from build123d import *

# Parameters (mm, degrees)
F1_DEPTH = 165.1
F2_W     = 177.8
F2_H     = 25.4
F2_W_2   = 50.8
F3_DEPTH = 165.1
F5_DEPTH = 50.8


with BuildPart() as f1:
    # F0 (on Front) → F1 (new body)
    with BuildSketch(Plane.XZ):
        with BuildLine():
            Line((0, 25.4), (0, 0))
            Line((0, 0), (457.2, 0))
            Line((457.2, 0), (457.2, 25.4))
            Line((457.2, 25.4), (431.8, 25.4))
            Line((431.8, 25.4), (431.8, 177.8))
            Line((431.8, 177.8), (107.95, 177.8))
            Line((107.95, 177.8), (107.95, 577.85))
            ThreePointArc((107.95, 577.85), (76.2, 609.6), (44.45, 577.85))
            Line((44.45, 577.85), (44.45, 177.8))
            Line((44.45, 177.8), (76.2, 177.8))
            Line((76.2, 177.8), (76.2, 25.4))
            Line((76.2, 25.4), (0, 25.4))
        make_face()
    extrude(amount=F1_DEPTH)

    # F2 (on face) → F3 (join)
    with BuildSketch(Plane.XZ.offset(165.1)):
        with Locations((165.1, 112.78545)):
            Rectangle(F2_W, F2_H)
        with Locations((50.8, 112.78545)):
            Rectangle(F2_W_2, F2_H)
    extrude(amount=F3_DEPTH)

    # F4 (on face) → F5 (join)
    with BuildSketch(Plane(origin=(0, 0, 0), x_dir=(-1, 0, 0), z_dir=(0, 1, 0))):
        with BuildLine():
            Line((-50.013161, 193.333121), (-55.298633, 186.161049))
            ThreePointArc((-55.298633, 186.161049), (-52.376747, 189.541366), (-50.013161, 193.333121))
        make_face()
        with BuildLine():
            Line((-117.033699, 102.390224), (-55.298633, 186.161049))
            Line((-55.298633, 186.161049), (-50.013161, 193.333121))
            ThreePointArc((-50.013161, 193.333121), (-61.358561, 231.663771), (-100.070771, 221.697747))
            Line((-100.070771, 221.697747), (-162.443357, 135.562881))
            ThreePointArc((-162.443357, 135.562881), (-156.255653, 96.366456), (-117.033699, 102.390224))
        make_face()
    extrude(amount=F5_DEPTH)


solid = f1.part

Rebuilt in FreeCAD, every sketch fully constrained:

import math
import FreeCAD as App
import Part
import Sketcher
Q = App.Units.Quantity


def add_polygon(sketch, points):
    """Adds a closed chain of lines whose ends are joined by coincident constraints."""
    first, n = sketch.GeometryCount, len(points)
    for a, b in zip(points, points[1:] + points[:1]):
        sketch.addGeometry(Part.LineSegment(App.Vector(*a, 0), App.Vector(*b, 0)), False)
    for i in range(n):
        sketch.addConstraint(Sketcher.Constraint("Coincident", first + i, 2, first + (i + 1) % n, 1))

doc = App.newDocument("Part")
body = doc.addObject("PartDesign::Body", "Body")

sketch1 = doc.addObject("Sketcher::SketchObject", "Sketch")
body.addObject(sketch1)
sketch1.AttachmentSupport = (doc.XZ_Plane, [""])
sketch1.MapMode = "FlatFace"
sketch1.addGeometry(Part.LineSegment(App.Vector(0, 25, 0), App.Vector(0, 0, 0)), False)
sketch1.addGeometry(Part.LineSegment(App.Vector(0, 0, 0), App.Vector(457, 0, 0)), False)
sketch1.addGeometry(Part.LineSegment(App.Vector(457, 0, 0), App.Vector(457, 25, 0)), False)
sketch1.addGeometry(Part.LineSegment(App.Vector(457, 25, 0), App.Vector(432, 25, 0)), False)
sketch1.addGeometry(Part.LineSegment(App.Vector(432, 25, 0), App.Vector(432, 178, 0)), False)
sketch1.addGeometry(Part.LineSegment(App.Vector(432, 178, 0), App.Vector(108, 178, 0)), False)
sketch1.addGeometry(Part.LineSegment(App.Vector(108, 178, 0), App.Vector(108, 578, 0)), False)
sketch1.addGeometry(Part.ArcOfCircle(Part.Circle(App.Vector(76, 578, 0), App.Vector(0, 0, 1), 32), math.radians(0), math.radians(180)), False)
sketch1.addGeometry(Part.LineSegment(App.Vector(44, 578, 0), App.Vector(44, 178, 0)), False)
sketch1.addGeometry(Part.LineSegment(App.Vector(44, 178, 0), App.Vector(76, 178, 0)), False)
sketch1.addGeometry(Part.LineSegment(App.Vector(76, 178, 0), App.Vector(76, 25, 0)), False)
sketch1.addGeometry(Part.LineSegment(App.Vector(76, 25, 0), App.Vector(0, 25, 0)), False)
sketch1.addConstraint(Sketcher.Constraint("Coincident", 0, 2, 1, 1))
sketch1.addConstraint(Sketcher.Constraint("Coincident", 1, 2, 2, 1))
sketch1.addConstraint(Sketcher.Constraint("Coincident", 2, 2, 3, 1))
sketch1.addConstraint(Sketcher.Constraint("Coincident", 3, 2, 4, 1))
sketch1.addConstraint(Sketcher.Constraint("Coincident", 4, 2, 5, 1))
sketch1.addConstraint(Sketcher.Constraint("Coincident", 5, 2, 6, 1))
sketch1.addConstraint(Sketcher.Constraint("Tangent", 6, 2, 7, 1))
sketch1.addConstraint(Sketcher.Constraint("Tangent", 7, 2, 8, 1))
sketch1.addConstraint(Sketcher.Constraint("Coincident", 8, 2, 9, 1))
sketch1.addConstraint(Sketcher.Constraint("Coincident", 9, 2, 10, 1))
sketch1.addConstraint(Sketcher.Constraint("Coincident", 10, 2, 11, 1))
sketch1.addConstraint(Sketcher.Constraint("Coincident", 11, 2, 0, 1))
sketch1.addConstraint(Sketcher.Constraint("Vertical", 0))
sketch1.addConstraint(Sketcher.Constraint("Horizontal", 1))
sketch1.addConstraint(Sketcher.Constraint("Vertical", 2))
sketch1.addConstraint(Sketcher.Constraint("Horizontal", 3))
sketch1.addConstraint(Sketcher.Constraint("Vertical", 4))
sketch1.addConstraint(Sketcher.Constraint("Horizontal", 5))
sketch1.addConstraint(Sketcher.Constraint("Vertical", 6))
sketch1.addConstraint(Sketcher.Constraint("Vertical", 8))
sketch1.addConstraint(Sketcher.Constraint("Horizontal", 9))
sketch1.addConstraint(Sketcher.Constraint("Vertical", 10))
sketch1.addConstraint(Sketcher.Constraint("Horizontal", 11))
sketch1.addConstraint(Sketcher.Constraint("Coincident", 0, 2, -1, 1))
sketch1.addConstraint(Sketcher.Constraint("Horizontal", 5, 2, 8, 2))
sketch1.addConstraint(Sketcher.Constraint("Horizontal", 3, 2, 10, 2))
sketch1.addConstraint(Sketcher.Constraint("Vertical", 7, 3, 9, 2))
sketch1.addConstraint(Sketcher.Constraint("Equal", 3, 0))
sketch1.addConstraint(Sketcher.Constraint("DistanceX", 1, 1, 1, 2, Q("18 in")))
sketch1.addConstraint(Sketcher.Constraint("DistanceX", 3, 2, 3, 1, Q("1 in")))
sketch1.addConstraint(Sketcher.Constraint("DistanceX", 11, 2, 11, 1, Q("3 in")))
sketch1.addConstraint(Sketcher.Constraint("DistanceY", 4, 1, 4, 2, Q("6 in")))
sketch1.addConstraint(Sketcher.Constraint("Radius", 7, Q("1.25 in")))
sketch1.addConstraint(Sketcher.Constraint("DistanceY", 6, 1, 6, 2, Q("15.75 in")))
pad1 = doc.addObject("PartDesign::Pad", "Pad")
body.addObject(pad1)
pad1.Profile = sketch1
pad1.Length = Q("6.5 in")

sketch2 = doc.addObject("Sketcher::SketchObject", "Sketch001")
body.addObject(sketch2)
sketch2.AttachmentSupport = (doc.XZ_Plane, [""])
sketch2.MapMode = "FlatFace"
sketch2.AttachmentOffset = App.Placement(App.Vector(0, 0, 6.5 * 25.4), App.Rotation())
add_polygon(sketch2, [(254, 100), (254, 125), (25, 125), (25, 100)])
sketch2.addConstraint(Sketcher.Constraint("Vertical", 0))
sketch2.addConstraint(Sketcher.Constraint("Horizontal", 1))
sketch2.addConstraint(Sketcher.Constraint("Vertical", 2))
sketch2.addConstraint(Sketcher.Constraint("Horizontal", 3))
sketch2.addConstraint(Sketcher.Constraint("DistanceX", 1, 2, 1, 1, Q("9 in")))
sketch2.addConstraint(Sketcher.Constraint("DistanceY", 0, 1, 0, 2, Q("1 in")))
sketch2.addConstraint(Sketcher.Constraint("DistanceX", -1, 1, 0, 2, Q("10 in")))
sketch2.addConstraint(Sketcher.Constraint("DistanceY", -1, 1, 0, 2, Q("125.48545 mm")))
pad2 = doc.addObject("PartDesign::Pad", "Pad001")
body.addObject(pad2)
pad2.Profile = sketch2
pad2.Length = Q("6.5 in")

sketch3 = doc.addObject("Sketcher::SketchObject", "Sketch002")
body.addObject(sketch3)
sketch3.AttachmentSupport = (doc.XZ_Plane, [""])
sketch3.MapMode = "FlatFace"
sketch3.addGeometry(Part.ArcOfCircle(Part.Circle(App.Vector(76, 207, 0), App.Vector(0, 0, 1), 29), math.radians(-152.51), math.radians(-134.71)), False)
sketch3.addGeometry(Part.ArcOfCircle(Part.Circle(App.Vector(76, 207, 0), App.Vector(0, 0, 1), 29), math.radians(32), math.radians(207)), False)
sketch3.addGeometry(Part.LineSegment(App.Vector(100, 222, 0), App.Vector(162, 136, 0)), False)
sketch3.addGeometry(Part.ArcOfCircle(Part.Circle(App.Vector(140, 119, 0), App.Vector(0, 0, 1), 28), math.radians(-144), math.radians(36)), False)
sketch3.addGeometry(Part.LineSegment(App.Vector(117, 102, 0), App.Vector(55, 186, 0)), False)
sketch3.addConstraint(Sketcher.Constraint("Tangent", 0, 1, 1, 2))
sketch3.addConstraint(Sketcher.Constraint("Coincident", 1, 1, 2, 1))
sketch3.addConstraint(Sketcher.Constraint("Tangent", 2, 2, 3, 2))
sketch3.addConstraint(Sketcher.Constraint("Tangent", 3, 1, 4, 1))
sketch3.addConstraint(Sketcher.Constraint("Coincident", 4, 2, 0, 2))
sketch3.addConstraint(Sketcher.Constraint("Radius", 0, Q("28.786109 mm")))
sketch3.addConstraint(Sketcher.Constraint("DistanceX", 0, 3, 2, 2, Q("3.421 in")))
sketch3.addConstraint(Sketcher.Constraint("Radius", 1, Q("28.786123 mm")))
sketch3.addConstraint(Sketcher.Constraint("Radius", 3, Q("28.118132 mm")))
sketch3.addConstraint(Sketcher.Constraint("DistanceX", -1, 1, 3, 1, Q("117.033699 mm")))
sketch3.addConstraint(Sketcher.Constraint("DistanceX", 1, 3, 1, 1, Q("24.520802 mm")))
sketch3.addConstraint(Sketcher.Constraint("DistanceY", 4, 2, 1, 1, Q("35.536698 mm")))
sketch3.addConstraint(Sketcher.Constraint("Distance", 2, Q("106.34639 mm")))
sketch3.addConstraint(Sketcher.Constraint("DistanceX", -1, 1, 0, 1, Q("50.013161 mm")))
sketch3.addConstraint(Sketcher.Constraint("DistanceY", -1, 1, 0, 1, Q("193.333121 mm")))
pad3 = doc.addObject("PartDesign::Pad", "Pad002")
body.addObject(pad3)
pad3.Profile = sketch3
pad3.Length = Q("2 in")
pad3.Reversed = True

doc.recompute()
